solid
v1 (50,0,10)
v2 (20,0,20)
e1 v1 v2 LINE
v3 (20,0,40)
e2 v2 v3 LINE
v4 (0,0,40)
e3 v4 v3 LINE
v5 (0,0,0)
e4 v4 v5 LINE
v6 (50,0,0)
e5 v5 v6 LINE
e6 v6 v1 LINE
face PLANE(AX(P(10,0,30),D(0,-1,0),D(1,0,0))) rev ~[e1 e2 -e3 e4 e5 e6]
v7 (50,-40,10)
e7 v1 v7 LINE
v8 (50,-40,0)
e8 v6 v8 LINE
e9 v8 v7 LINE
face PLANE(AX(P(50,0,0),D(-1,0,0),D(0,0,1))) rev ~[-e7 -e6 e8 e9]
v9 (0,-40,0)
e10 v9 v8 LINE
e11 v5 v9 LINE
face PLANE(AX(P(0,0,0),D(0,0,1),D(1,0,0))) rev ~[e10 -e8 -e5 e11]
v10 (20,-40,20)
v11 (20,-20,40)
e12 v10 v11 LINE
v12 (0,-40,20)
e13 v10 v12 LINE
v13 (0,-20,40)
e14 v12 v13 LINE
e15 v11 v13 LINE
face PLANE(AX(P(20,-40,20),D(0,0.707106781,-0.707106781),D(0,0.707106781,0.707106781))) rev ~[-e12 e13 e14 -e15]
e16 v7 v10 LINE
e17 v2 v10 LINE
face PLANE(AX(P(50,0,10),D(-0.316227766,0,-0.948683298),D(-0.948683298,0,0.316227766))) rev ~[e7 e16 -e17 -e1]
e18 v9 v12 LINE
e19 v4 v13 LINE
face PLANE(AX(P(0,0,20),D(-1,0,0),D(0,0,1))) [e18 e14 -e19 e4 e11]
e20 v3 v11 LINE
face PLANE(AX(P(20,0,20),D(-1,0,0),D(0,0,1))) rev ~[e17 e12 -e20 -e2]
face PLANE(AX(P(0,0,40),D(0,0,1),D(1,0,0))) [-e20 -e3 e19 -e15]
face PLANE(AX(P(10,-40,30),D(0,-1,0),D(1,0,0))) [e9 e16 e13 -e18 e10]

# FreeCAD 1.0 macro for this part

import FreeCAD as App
import Part
import Sketcher

V = App.Vector
Q = App.Units.Quantity

doc = App.newDocument("Part")
body = doc.addObject("PartDesign::Body", "Body")

# Sketch on XZ plane
sketch1 = body.newObject("Sketcher::SketchObject", "Sketch")
sketch1.AttachmentSupport = (doc.getObject("XZ_Plane"), [""])
sketch1.MapMode = "FlatFace"
sketch1.addGeometry(Part.LineSegment(V(0, 20, 0), V(0, 0, 0)), False)
sketch1.addGeometry(Part.LineSegment(V(0, 0, 0), V(50, 0, 0)), False)
sketch1.addGeometry(Part.LineSegment(V(50, 0, 0), V(50, 10, 0)), False)
sketch1.addGeometry(Part.LineSegment(V(50, 10, 0), V(20, 20, 0)), False)
sketch1.addGeometry(Part.LineSegment(V(20, 20, 0), V(0, 20, 0)), False)
sketch1.addConstraint(Sketcher.Constraint("Coincident", 0, 2, 1, 1))
sketch1.addConstraint(Sketcher.Constraint("Coincident", 1, 2, 2, 1))
sketch1.addConstraint(Sketcher.Constraint("Coincident", 2, 2, 3, 1))
sketch1.addConstraint(Sketcher.Constraint("Coincident", 3, 2, 4, 1))
sketch1.addConstraint(Sketcher.Constraint("Coincident", 4, 2, 0, 1))
sketch1.addConstraint(Sketcher.Constraint("Vertical", 0))
sketch1.addConstraint(Sketcher.Constraint("Horizontal", 1))
sketch1.addConstraint(Sketcher.Constraint("Vertical", 2))
sketch1.addConstraint(Sketcher.Constraint("Horizontal", 4))
sketch1.addConstraint(Sketcher.Constraint("Coincident", 0, 2, -1, 1))
sketch1.addConstraint(Sketcher.Constraint("Equal", 4, 0))
sketch1.addConstraint(Sketcher.Constraint("DistanceX", 1, 1, 1, 2, Q("50 mm")))
sketch1.addConstraint(Sketcher.Constraint("DistanceX", 4, 2, 4, 1, Q("20 mm")))
sketch1.addConstraint(Sketcher.Constraint("DistanceY", 2, 1, 2, 2, Q("10 mm")))
pad1 = body.newObject("PartDesign::Pad", "Pad")
pad1.Profile = sketch1
pad1.Length = 40

# Sketch on XZ plane
sketch2 = body.newObject("Sketcher::SketchObject", "Sketch001")
sketch2.AttachmentSupport = (doc.getObject("XZ_Plane"), [""])
sketch2.MapMode = "FlatFace"
sketch2.addGeometry(Part.LineSegment(V(0, 40, 0), V(0, 20, 0)), False)
sketch2.addGeometry(Part.LineSegment(V(0, 20, 0), V(20, 20, 0)), False)
sketch2.addGeometry(Part.LineSegment(V(20, 20, 0), V(20, 40, 0)), False)
sketch2.addGeometry(Part.LineSegment(V(20, 40, 0), V(0, 40, 0)), False)
sketch2.addConstraint(Sketcher.Constraint("Coincident", 0, 2, 1, 1))
sketch2.addConstraint(Sketcher.Constraint("Coincident", 1, 2, 2, 1))
sketch2.addConstraint(Sketcher.Constraint("Coincident", 2, 2, 3, 1))
sketch2.addConstraint(Sketcher.Constraint("Coincident", 3, 2, 0, 1))
sketch2.addConstraint(Sketcher.Constraint("Vertical", 0))
sketch2.addConstraint(Sketcher.Constraint("Horizontal", 1))
sketch2.addConstraint(Sketcher.Constraint("Vertical", 2))
sketch2.addConstraint(Sketcher.Constraint("Horizontal", 3))
sketch2.addConstraint(Sketcher.Constraint("PointOnObject", 0, 2, -2))
sketch2.addConstraint(Sketcher.Constraint("Equal", 3, 0))
sketch2.addConstraint(Sketcher.Constraint("DistanceX", 1, 1, 1, 2, Q("20 mm")))
sketch2.addConstraint(Sketcher.Constraint("DistanceY", -1, 1, 0, 2, Q("20 mm")))
pad2 = body.newObject("PartDesign::Pad", "Pad001")
pad2.Profile = sketch2
pad2.Length = 40

# Sketch on YZ plane
sketch3 = body.newObject("Sketcher::SketchObject", "Sketch002")
sketch3.AttachmentSupport = (doc.getObject("YZ_Plane"), [""])
sketch3.MapMode = "FlatFace"
sketch3.AttachmentOffset = App.Placement(V(0, 0, 20), App.Rotation())
sketch3.addGeometry(Part.LineSegment(V(-40, 20, 0), V(-20, 40, 0)), False)
sketch3.addGeometry(Part.LineSegment(V(-20, 40, 0), V(-40, 40, 0)), False)
sketch3.addGeometry(Part.LineSegment(V(-40, 40, 0), V(-40, 20, 0)), False)
sketch3.addConstraint(Sketcher.Constraint("Coincident", 0, 2, 1, 1))
sketch3.addConstraint(Sketcher.Constraint("Coincident", 1, 2, 2, 1))
sketch3.addConstraint(Sketcher.Constraint("Coincident", 2, 2, 0, 1))
sketch3.addConstraint(Sketcher.Constraint("Horizontal", 1))
sketch3.addConstraint(Sketcher.Constraint("Vertical", 2))
sketch3.addConstraint(Sketcher.Constraint("Equal", 1, 2))
sketch3.addConstraint(Sketcher.Constraint("DistanceX", 1, 2, 1, 1, Q("20 mm")))
sketch3.addConstraint(Sketcher.Constraint("DistanceX", 0, 2, -1, 1, Q("20 mm")))
sketch3.addConstraint(Sketcher.Constraint("DistanceY", -1, 1, 0, 2, Q("40 mm")))
pocket1 = body.newObject("PartDesign::Pocket", "Pocket")
pocket1.Profile = sketch3
pocket1.Length = 20

doc.recompute()
